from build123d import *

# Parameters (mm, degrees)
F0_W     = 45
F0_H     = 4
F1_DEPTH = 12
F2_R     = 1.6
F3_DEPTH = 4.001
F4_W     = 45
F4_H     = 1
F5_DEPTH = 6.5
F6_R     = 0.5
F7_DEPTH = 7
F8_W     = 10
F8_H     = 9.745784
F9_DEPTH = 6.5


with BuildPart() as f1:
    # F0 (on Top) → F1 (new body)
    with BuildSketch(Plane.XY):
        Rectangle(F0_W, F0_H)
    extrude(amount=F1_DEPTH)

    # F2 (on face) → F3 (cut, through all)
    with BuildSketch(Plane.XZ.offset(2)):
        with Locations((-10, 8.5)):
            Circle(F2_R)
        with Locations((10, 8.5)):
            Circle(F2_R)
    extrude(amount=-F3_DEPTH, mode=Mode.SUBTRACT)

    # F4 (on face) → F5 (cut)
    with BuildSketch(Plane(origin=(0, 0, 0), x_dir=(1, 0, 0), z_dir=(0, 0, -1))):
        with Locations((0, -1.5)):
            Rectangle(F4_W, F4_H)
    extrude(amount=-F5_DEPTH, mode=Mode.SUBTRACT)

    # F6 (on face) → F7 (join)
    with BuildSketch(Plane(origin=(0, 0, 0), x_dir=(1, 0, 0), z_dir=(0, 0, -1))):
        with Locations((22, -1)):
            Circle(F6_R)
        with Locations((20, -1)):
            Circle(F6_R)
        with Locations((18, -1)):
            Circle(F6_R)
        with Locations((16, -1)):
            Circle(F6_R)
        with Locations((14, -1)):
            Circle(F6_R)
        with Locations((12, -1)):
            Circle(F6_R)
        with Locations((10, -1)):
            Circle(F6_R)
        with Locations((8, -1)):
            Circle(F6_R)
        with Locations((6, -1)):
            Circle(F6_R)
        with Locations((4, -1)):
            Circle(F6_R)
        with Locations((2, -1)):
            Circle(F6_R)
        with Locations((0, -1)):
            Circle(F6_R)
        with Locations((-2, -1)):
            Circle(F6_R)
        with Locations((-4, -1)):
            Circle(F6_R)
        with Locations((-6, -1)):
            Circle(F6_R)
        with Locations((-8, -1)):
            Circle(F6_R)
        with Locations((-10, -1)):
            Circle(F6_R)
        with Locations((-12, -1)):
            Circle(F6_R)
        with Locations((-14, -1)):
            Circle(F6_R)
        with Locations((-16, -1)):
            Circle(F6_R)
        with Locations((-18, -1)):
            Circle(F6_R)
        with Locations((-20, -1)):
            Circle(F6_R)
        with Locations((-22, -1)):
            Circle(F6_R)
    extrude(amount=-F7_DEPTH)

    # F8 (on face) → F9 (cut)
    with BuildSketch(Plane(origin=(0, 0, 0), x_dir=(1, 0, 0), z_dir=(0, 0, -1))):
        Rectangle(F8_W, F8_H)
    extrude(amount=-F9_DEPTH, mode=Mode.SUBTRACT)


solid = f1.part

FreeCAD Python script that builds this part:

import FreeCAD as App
import Part
import Sketcher

V = App.Vector


def add_polygon(sketch, points):
    """Adds a closed chain of lines whose ends are joined by coincident constraints."""
    first, n = sketch.GeometryCount, len(points)
    for a, b in zip(points, points[1:] + points[:1]):
        sketch.addGeometry(Part.LineSegment(App.Vector(*a, 0), App.Vector(*b, 0)), False)
    for i in range(n):
        sketch.addConstraint(Sketcher.Constraint("Coincident", first + i, 2, first + (i + 1) % n, 1))

doc = App.newDocument("Part")
params = doc.addObject("Spreadsheet::Sheet", "Params")
for row, (alias, value) in enumerate([
    ("sketch1_width", "45 mm"),
    ("sketch1_height", "4 mm"),
    ("pad1_length", "12 mm"),
    ("sketch2_diameter", "3.2 mm"),
    ("sketch3_width", "45 mm"),
    ("sketch3_height", "1 mm"),
    ("pocket2_length", "6.5 mm"),
    ("sketch4_diameter", "1 mm"),
    ("pad2_length", "7 mm"),
    ("sketch5_width", "10 mm"),
    ("pocket3_length", "6.5 mm"),
], start=1):
    params.set(f"A{row}", alias)
    params.set(f"B{row}", "=" + value)
    params.setAlias(f"B{row}", alias)

body = doc.addObject("PartDesign::Body", "Body")

# Sketch on XY plane
sketch1 = body.newObject("Sketcher::SketchObject", "Sketch")
sketch1.AttachmentSupport = (doc.getObject("XY_Plane"), [""])
sketch1.MapMode = "FlatFace"
add_polygon(sketch1, [(-22.5, 2), (-22.5, -2), (22.5, -2), (22.5, 2)])  # lines 0-3
sketch1.addConstraint(Sketcher.Constraint("Vertical", 0))
sketch1.addConstraint(Sketcher.Constraint("Horizontal", 1))
sketch1.addConstraint(Sketcher.Constraint("Vertical", 2))
sketch1.addConstraint(Sketcher.Constraint("Horizontal", 3))
sketch1.addConstraint(Sketcher.Constraint("Symmetric", 0, 2, 2, 2, -1, 1))
sketch1.addConstraint(Sketcher.Constraint("DistanceX", 1, 1, 1, 2, 45.0))
sketch1.addConstraint(Sketcher.Constraint("DistanceY", 0, 2, 0, 1, 4.0))
sketch1.setExpression("Constraints[9]", "Params.sketch1_width")
sketch1.setExpression("Constraints[10]", "Params.sketch1_height")
pad1 = body.newObject("PartDesign::Pad", "Pad")
pad1.Profile = sketch1
pad1.setExpression("Length", "Params.pad1_length")

# Sketch on XZ plane
sketch2 = body.newObject("Sketcher::SketchObject", "Sketch001")
sketch2.AttachmentSupport = (doc.getObject("XZ_Plane"), [""])
sketch2.MapMode = "FlatFace"
sketch2.AttachmentOffset = App.Placement(V(0, 0, 2), App.Rotation())
sketch2.addGeometry(Part.Circle(V(-10, 8.5, 0), V(0, 0, 1), 1.6), False)
sketch2.addGeometry(Part.Circle(V(10, 8.5, 0), V(0, 0, 1), 1.6), False)
sketch2.addConstraint(Sketcher.Constraint("Equal", 0, 1))
sketch2.addConstraint(Sketcher.Constraint("Symmetric", 0, 3, 1, 3, -2))
sketch2.addConstraint(Sketcher.Constraint("Diameter", 0, 3.2))
sketch2.addConstraint(Sketcher.Constraint("DistanceX", 0, 3, -1, 1, 10.0))
sketch2.addConstraint(Sketcher.Constraint("DistanceY", -1, 1, 0, 3, 8.5))
sketch2.setExpression("Constraints[2]", "Params.sketch2_diameter")
pocket1 = body.newObject("PartDesign::Pocket", "Pocket")
pocket1.Profile = sketch2
pocket1.Type = "ThroughAll"

# Sketch on XY plane
sketch3 = body.newObject("Sketcher::SketchObject", "Sketch002")
sketch3.AttachmentSupport = (doc.getObject("XY_Plane"), [""])
sketch3.MapMode = "FlatFace"
add_polygon(sketch3, [(-22.5, 1), (-22.5, 2), (22.5, 2), (22.5, 1)])  # lines 0-3
sketch3.addConstraint(Sketcher.Constraint("Vertical", 0))
sketch3.addConstraint(Sketcher.Constraint("Horizontal", 1))
sketch3.addConstraint(Sketcher.Constraint("Vertical", 2))
sketch3.addConstraint(Sketcher.Constraint("Horizontal", 3))
sketch3.addConstraint(Sketcher.Constraint("DistanceX", 1, 1, 1, 2, 45.0))
sketch3.addConstraint(Sketcher.Constraint("DistanceY", 0, 1, 0, 2, 1.0))
sketch3.addConstraint(Sketcher.Constraint("DistanceY", -1, 1, 0, 2, 2.0))
sketch3.addConstraint(Sketcher.Constraint("DistanceX", 0, 2, -1, 1, 22.5))
sketch3.setExpression("Constraints[8]", "Params.sketch3_width")
sketch3.setExpression("Constraints[9]", "Params.sketch3_height")
pocket2 = body.newObject("PartDesign::Pocket", "Pocket001")
pocket2.Profile = sketch3
pocket2.setExpression("Length", "Params.pocket2_length")
pocket2.Reversed = True

# Sketch on XY plane
sketch4 = body.newObject("Sketcher::SketchObject", "Sketch003")
sketch4.AttachmentSupport = (doc.getObject("XY_Plane"), [""])
sketch4.MapMode = "FlatFace"
sketch4.addGeometry(Part.Circle(V(22, 1, 0), V(0, 0, 1), 0.5), False)
sketch4.addGeometry(Part.Circle(V(20, 1, 0), V(0, 0, 1), 0.5), False)
sketch4.addGeometry(Part.Circle(V(18, 1, 0), V(0, 0, 1), 0.5), False)
sketch4.addGeometry(Part.Circle(V(16, 1, 0), V(0, 0, 1), 0.5), False)
sketch4.addGeometry(Part.Circle(V(14, 1, 0), V(0, 0, 1), 0.5), False)
sketch4.addGeometry(Part.Circle(V(12, 1, 0), V(0, 0, 1), 0.5), False)
sketch4.addGeometry(Part.Circle(V(10, 1, 0), V(0, 0, 1), 0.5), False)
sketch4.addGeometry(Part.Circle(V(8, 1, 0), V(0, 0, 1), 0.5), False)
sketch4.addGeometry(Part.Circle(V(6, 1, 0), V(0, 0, 1), 0.5), False)
sketch4.addGeometry(Part.Circle(V(4, 1, 0), V(0, 0, 1), 0.5), False)
sketch4.addGeometry(Part.Circle(V(2, 1, 0), V(0, 0, 1), 0.5), False)
sketch4.addGeometry(Part.Circle(V(0, 1, 0), V(0, 0, 1), 0.5), False)
sketch4.addGeometry(Part.Circle(V(-2, 1, 0), V(0, 0, 1), 0.5), False)
sketch4.addGeometry(Part.Circle(V(-4, 1, 0), V(0, 0, 1), 0.5), False)
sketch4.addGeometry(Part.Circle(V(-6, 1, 0), V(0, 0, 1), 0.5), False)
sketch4.addGeometry(Part.Circle(V(-8, 1, 0), V(0, 0, 1), 0.5), False)
sketch4.addGeometry(Part.Circle(V(-10, 1, 0), V(0, 0, 1), 0.5), False)
sketch4.addGeometry(Part.Circle(V(-12, 1, 0), V(0, 0, 1), 0.5), False)
sketch4.addGeometry(Part.Circle(V(-14, 1, 0), V(0, 0, 1), 0.5), False)
sketch4.addGeometry(Part.Circle(V(-16, 1, 0), V(0, 0, 1), 0.5), False)
sketch4.addGeometry(Part.Circle(V(-18, 1, 0), V(0, 0, 1), 0.5), False)
sketch4.addGeometry(Part.Circle(V(-20, 1, 0), V(0, 0, 1), 0.5), False)
sketch4.addGeometry(Part.Circle(V(-22, 1, 0), V(0, 0, 1), 0.5), False)
sketch4.addConstraint(Sketcher.Constraint("Equal", 0, 1))
sketch4.addConstraint(Sketcher.Constraint("Equal", 1, 2))
sketch4.addConstraint(Sketcher.Constraint("Equal", 2, 3))
sketch4.addConstraint(Sketcher.Constraint("Equal", 3, 4))
sketch4.addConstraint(Sketcher.Constraint("Equal", 4, 5))
sketch4.addConstraint(Sketcher.Constraint("Equal", 5, 6))
sketch4.addConstraint(Sketcher.Constraint("Equal", 6, 7))
sketch4.addConstraint(Sketcher.Constraint("Equal", 7, 8))
sketch4.addConstraint(Sketcher.Constraint("Equal", 8, 9))
sketch4.addConstraint(Sketcher.Constraint("Equal", 9, 10))
sketch4.addConstraint(Sketcher.Constraint("Equal", 10, 11))
sketch4.addConstraint(Sketcher.Constraint("Equal", 11, 12))
sketch4.addConstraint(Sketcher.Constraint("Equal", 12, 13))
sketch4.addConstraint(Sketcher.Constraint("Equal", 13, 14))
sketch4.addConstraint(Sketcher.Constraint("Equal", 14, 15))
sketch4.addConstraint(Sketcher.Constraint("Equal", 15, 16))
sketch4.addConstraint(Sketcher.Constraint("Equal", 16, 17))
sketch4.addConstraint(Sketcher.Constraint("Equal", 17, 18))
sketch4.addConstraint(Sketcher.Constraint("Equal", 18, 19))
sketch4.addConstraint(Sketcher.Constraint("Equal", 19, 20))
sketch4.addConstraint(Sketcher.Constraint("Equal", 20, 21))
sketch4.addConstraint(Sketcher.Constraint("Equal", 21, 22))
sketch4.addConstraint(Sketcher.Constraint("Symmetric", 10, 3, 12, 3, -2))
sketch4.addConstraint(Sketcher.Constraint("Symmetric", 9, 3, 13, 3, -2))
sketch4.addConstraint(Sketcher.Constraint("Symmetric", 8, 3, 14, 3, -2))
sketch4.addConstraint(Sketcher.Constraint("Symmetric", 7, 3, 15, 3, -2))
sketch4.addConstraint(Sketcher.Constraint("Symmetric", 6, 3, 16, 3, -2))
sketch4.addConstraint(Sketcher.Constraint("Symmetric", 5, 3, 17, 3, -2))
sketch4.addConstraint(Sketcher.Constraint("Symmetric", 4, 3, 18, 3, -2))
sketch4.addConstraint(Sketcher.Constraint("Symmetric", 3, 3, 19, 3, -2))
sketch4.addConstraint(Sketcher.Constraint("Symmetric", 2, 3, 20, 3, -2))
sketch4.addConstraint(Sketcher.Constraint("Symmetric", 1, 3, 21, 3, -2))
sketch4.addConstraint(Sketcher.Constraint("Symmetric", 0, 3, 22, 3, -2))
sketch4.addConstraint(Sketcher.Constraint("PointOnObject", 11, 3, -2))
sketch4.addConstraint(Sketcher.Constraint("Horizontal", 0, 3, 1, 3))
sketch4.addConstraint(Sketcher.Constraint("Horizontal", 1, 3, 2, 3))
sketch4.addConstraint(Sketcher.Constraint("Horizontal", 2, 3, 3, 3))
sketch4.addConstraint(Sketcher.Constraint("Horizontal", 3, 3, 4, 3))
sketch4.addConstraint(Sketcher.Constraint("Horizontal", 4, 3, 5, 3))
sketch4.addConstraint(Sketcher.Constraint("Horizontal", 5, 3, 6, 3))
sketch4.addConstraint(Sketcher.Constraint("Horizontal", 6, 3, 7, 3))
sketch4.addConstraint(Sketcher.Constraint("Horizontal", 7, 3, 8, 3))
sketch4.addConstraint(Sketcher.Constraint("Horizontal", 8, 3, 9, 3))
sketch4.addConstraint(Sketcher.Constraint("Horizontal", 9, 3, 10, 3))
sketch4.addConstraint(Sketcher.Constraint("Horizontal", 10, 3, 11, 3))
sketch4.addConstraint(Sketcher.Constraint("Diameter", 0, 1.0))
sketch4.addConstraint(Sketcher.Constraint("DistanceX", -1, 1, 0, 3, 22.0))
sketch4.addConstraint(Sketcher.Constraint("DistanceY", -1, 1, 0, 3, 1.0))
sketch4.addConstraint(Sketcher.Constraint("DistanceX", -1, 1, 1, 3, 20.0))
sketch4.addConstraint(Sketcher.Constraint("DistanceX", -1, 1, 2, 3, 18.0))
sketch4.addConstraint(Sketcher.Constraint("DistanceX", -1, 1, 3, 3, 16.0))
sketch4.addConstraint(Sketcher.Constraint("DistanceX", -1, 1, 4, 3, 14.0))
sketch4.addConstraint(Sketcher.Constraint("DistanceX", -1, 1, 5, 3, 12.0))
sketch4.addConstraint(Sketcher.Constraint("DistanceX", -1, 1, 6, 3, 10.0))
sketch4.addConstraint(Sketcher.Constraint("DistanceX", -1, 1, 7, 3, 8.0))
sketch4.addConstraint(Sketcher.Constraint("DistanceX", -1, 1, 8, 3, 6.0))
sketch4.addConstraint(Sketcher.Constraint("DistanceX", -1, 1, 9, 3, 4.0))
sketch4.addConstraint(Sketcher.Constraint("DistanceX", -1, 1, 10, 3, 2.0))
sketch4.setExpression("Constraints[45]", "Params.sketch4_diameter")
pad2 = body.newObject("PartDesign::Pad", "Pad001")
pad2.Profile = sketch4
pad2.setExpression("Length", "Params.pad2_length")

# Sketch on XY plane
sketch5 = body.newObject("Sketcher::SketchObject", "Sketch004")
sketch5.AttachmentSupport = (doc.getObject("XY_Plane"), [""])
sketch5.MapMode = "FlatFace"
add_polygon(sketch5, [(-5, -4.872892), (-5, 4.872892), (5, 4.872892), (5, -4.872892)])  # lines 0-3
sketch5.addConstraint(Sketcher.Constraint("Vertical", 0))
sketch5.addConstraint(Sketcher.Constraint("Horizontal", 1))
sketch5.addConstraint(Sketcher.Constraint("Vertical", 2))
sketch5.addConstraint(Sketcher.Constraint("Horizontal", 3))
sketch5.addConstraint(Sketcher.Constraint("Symmetric", 0, 2, 2, 2, -1, 1))
sketch5.addConstraint(Sketcher.Constraint("DistanceX", 1, 1, 1, 2, 10.0))
sketch5.addConstraint(Sketcher.Constraint("DistanceY", 0, 1, 0, 2, 9.745784))
sketch5.setExpression("Constraints[9]", "Params.sketch5_width")
pocket3 = body.newObject("PartDesign::Pocket", "Pocket002")
pocket3.Profile = sketch5
pocket3.setExpression("Length", "Params.pocket3_length")
pocket3.Reversed = True

doc.recompute()
